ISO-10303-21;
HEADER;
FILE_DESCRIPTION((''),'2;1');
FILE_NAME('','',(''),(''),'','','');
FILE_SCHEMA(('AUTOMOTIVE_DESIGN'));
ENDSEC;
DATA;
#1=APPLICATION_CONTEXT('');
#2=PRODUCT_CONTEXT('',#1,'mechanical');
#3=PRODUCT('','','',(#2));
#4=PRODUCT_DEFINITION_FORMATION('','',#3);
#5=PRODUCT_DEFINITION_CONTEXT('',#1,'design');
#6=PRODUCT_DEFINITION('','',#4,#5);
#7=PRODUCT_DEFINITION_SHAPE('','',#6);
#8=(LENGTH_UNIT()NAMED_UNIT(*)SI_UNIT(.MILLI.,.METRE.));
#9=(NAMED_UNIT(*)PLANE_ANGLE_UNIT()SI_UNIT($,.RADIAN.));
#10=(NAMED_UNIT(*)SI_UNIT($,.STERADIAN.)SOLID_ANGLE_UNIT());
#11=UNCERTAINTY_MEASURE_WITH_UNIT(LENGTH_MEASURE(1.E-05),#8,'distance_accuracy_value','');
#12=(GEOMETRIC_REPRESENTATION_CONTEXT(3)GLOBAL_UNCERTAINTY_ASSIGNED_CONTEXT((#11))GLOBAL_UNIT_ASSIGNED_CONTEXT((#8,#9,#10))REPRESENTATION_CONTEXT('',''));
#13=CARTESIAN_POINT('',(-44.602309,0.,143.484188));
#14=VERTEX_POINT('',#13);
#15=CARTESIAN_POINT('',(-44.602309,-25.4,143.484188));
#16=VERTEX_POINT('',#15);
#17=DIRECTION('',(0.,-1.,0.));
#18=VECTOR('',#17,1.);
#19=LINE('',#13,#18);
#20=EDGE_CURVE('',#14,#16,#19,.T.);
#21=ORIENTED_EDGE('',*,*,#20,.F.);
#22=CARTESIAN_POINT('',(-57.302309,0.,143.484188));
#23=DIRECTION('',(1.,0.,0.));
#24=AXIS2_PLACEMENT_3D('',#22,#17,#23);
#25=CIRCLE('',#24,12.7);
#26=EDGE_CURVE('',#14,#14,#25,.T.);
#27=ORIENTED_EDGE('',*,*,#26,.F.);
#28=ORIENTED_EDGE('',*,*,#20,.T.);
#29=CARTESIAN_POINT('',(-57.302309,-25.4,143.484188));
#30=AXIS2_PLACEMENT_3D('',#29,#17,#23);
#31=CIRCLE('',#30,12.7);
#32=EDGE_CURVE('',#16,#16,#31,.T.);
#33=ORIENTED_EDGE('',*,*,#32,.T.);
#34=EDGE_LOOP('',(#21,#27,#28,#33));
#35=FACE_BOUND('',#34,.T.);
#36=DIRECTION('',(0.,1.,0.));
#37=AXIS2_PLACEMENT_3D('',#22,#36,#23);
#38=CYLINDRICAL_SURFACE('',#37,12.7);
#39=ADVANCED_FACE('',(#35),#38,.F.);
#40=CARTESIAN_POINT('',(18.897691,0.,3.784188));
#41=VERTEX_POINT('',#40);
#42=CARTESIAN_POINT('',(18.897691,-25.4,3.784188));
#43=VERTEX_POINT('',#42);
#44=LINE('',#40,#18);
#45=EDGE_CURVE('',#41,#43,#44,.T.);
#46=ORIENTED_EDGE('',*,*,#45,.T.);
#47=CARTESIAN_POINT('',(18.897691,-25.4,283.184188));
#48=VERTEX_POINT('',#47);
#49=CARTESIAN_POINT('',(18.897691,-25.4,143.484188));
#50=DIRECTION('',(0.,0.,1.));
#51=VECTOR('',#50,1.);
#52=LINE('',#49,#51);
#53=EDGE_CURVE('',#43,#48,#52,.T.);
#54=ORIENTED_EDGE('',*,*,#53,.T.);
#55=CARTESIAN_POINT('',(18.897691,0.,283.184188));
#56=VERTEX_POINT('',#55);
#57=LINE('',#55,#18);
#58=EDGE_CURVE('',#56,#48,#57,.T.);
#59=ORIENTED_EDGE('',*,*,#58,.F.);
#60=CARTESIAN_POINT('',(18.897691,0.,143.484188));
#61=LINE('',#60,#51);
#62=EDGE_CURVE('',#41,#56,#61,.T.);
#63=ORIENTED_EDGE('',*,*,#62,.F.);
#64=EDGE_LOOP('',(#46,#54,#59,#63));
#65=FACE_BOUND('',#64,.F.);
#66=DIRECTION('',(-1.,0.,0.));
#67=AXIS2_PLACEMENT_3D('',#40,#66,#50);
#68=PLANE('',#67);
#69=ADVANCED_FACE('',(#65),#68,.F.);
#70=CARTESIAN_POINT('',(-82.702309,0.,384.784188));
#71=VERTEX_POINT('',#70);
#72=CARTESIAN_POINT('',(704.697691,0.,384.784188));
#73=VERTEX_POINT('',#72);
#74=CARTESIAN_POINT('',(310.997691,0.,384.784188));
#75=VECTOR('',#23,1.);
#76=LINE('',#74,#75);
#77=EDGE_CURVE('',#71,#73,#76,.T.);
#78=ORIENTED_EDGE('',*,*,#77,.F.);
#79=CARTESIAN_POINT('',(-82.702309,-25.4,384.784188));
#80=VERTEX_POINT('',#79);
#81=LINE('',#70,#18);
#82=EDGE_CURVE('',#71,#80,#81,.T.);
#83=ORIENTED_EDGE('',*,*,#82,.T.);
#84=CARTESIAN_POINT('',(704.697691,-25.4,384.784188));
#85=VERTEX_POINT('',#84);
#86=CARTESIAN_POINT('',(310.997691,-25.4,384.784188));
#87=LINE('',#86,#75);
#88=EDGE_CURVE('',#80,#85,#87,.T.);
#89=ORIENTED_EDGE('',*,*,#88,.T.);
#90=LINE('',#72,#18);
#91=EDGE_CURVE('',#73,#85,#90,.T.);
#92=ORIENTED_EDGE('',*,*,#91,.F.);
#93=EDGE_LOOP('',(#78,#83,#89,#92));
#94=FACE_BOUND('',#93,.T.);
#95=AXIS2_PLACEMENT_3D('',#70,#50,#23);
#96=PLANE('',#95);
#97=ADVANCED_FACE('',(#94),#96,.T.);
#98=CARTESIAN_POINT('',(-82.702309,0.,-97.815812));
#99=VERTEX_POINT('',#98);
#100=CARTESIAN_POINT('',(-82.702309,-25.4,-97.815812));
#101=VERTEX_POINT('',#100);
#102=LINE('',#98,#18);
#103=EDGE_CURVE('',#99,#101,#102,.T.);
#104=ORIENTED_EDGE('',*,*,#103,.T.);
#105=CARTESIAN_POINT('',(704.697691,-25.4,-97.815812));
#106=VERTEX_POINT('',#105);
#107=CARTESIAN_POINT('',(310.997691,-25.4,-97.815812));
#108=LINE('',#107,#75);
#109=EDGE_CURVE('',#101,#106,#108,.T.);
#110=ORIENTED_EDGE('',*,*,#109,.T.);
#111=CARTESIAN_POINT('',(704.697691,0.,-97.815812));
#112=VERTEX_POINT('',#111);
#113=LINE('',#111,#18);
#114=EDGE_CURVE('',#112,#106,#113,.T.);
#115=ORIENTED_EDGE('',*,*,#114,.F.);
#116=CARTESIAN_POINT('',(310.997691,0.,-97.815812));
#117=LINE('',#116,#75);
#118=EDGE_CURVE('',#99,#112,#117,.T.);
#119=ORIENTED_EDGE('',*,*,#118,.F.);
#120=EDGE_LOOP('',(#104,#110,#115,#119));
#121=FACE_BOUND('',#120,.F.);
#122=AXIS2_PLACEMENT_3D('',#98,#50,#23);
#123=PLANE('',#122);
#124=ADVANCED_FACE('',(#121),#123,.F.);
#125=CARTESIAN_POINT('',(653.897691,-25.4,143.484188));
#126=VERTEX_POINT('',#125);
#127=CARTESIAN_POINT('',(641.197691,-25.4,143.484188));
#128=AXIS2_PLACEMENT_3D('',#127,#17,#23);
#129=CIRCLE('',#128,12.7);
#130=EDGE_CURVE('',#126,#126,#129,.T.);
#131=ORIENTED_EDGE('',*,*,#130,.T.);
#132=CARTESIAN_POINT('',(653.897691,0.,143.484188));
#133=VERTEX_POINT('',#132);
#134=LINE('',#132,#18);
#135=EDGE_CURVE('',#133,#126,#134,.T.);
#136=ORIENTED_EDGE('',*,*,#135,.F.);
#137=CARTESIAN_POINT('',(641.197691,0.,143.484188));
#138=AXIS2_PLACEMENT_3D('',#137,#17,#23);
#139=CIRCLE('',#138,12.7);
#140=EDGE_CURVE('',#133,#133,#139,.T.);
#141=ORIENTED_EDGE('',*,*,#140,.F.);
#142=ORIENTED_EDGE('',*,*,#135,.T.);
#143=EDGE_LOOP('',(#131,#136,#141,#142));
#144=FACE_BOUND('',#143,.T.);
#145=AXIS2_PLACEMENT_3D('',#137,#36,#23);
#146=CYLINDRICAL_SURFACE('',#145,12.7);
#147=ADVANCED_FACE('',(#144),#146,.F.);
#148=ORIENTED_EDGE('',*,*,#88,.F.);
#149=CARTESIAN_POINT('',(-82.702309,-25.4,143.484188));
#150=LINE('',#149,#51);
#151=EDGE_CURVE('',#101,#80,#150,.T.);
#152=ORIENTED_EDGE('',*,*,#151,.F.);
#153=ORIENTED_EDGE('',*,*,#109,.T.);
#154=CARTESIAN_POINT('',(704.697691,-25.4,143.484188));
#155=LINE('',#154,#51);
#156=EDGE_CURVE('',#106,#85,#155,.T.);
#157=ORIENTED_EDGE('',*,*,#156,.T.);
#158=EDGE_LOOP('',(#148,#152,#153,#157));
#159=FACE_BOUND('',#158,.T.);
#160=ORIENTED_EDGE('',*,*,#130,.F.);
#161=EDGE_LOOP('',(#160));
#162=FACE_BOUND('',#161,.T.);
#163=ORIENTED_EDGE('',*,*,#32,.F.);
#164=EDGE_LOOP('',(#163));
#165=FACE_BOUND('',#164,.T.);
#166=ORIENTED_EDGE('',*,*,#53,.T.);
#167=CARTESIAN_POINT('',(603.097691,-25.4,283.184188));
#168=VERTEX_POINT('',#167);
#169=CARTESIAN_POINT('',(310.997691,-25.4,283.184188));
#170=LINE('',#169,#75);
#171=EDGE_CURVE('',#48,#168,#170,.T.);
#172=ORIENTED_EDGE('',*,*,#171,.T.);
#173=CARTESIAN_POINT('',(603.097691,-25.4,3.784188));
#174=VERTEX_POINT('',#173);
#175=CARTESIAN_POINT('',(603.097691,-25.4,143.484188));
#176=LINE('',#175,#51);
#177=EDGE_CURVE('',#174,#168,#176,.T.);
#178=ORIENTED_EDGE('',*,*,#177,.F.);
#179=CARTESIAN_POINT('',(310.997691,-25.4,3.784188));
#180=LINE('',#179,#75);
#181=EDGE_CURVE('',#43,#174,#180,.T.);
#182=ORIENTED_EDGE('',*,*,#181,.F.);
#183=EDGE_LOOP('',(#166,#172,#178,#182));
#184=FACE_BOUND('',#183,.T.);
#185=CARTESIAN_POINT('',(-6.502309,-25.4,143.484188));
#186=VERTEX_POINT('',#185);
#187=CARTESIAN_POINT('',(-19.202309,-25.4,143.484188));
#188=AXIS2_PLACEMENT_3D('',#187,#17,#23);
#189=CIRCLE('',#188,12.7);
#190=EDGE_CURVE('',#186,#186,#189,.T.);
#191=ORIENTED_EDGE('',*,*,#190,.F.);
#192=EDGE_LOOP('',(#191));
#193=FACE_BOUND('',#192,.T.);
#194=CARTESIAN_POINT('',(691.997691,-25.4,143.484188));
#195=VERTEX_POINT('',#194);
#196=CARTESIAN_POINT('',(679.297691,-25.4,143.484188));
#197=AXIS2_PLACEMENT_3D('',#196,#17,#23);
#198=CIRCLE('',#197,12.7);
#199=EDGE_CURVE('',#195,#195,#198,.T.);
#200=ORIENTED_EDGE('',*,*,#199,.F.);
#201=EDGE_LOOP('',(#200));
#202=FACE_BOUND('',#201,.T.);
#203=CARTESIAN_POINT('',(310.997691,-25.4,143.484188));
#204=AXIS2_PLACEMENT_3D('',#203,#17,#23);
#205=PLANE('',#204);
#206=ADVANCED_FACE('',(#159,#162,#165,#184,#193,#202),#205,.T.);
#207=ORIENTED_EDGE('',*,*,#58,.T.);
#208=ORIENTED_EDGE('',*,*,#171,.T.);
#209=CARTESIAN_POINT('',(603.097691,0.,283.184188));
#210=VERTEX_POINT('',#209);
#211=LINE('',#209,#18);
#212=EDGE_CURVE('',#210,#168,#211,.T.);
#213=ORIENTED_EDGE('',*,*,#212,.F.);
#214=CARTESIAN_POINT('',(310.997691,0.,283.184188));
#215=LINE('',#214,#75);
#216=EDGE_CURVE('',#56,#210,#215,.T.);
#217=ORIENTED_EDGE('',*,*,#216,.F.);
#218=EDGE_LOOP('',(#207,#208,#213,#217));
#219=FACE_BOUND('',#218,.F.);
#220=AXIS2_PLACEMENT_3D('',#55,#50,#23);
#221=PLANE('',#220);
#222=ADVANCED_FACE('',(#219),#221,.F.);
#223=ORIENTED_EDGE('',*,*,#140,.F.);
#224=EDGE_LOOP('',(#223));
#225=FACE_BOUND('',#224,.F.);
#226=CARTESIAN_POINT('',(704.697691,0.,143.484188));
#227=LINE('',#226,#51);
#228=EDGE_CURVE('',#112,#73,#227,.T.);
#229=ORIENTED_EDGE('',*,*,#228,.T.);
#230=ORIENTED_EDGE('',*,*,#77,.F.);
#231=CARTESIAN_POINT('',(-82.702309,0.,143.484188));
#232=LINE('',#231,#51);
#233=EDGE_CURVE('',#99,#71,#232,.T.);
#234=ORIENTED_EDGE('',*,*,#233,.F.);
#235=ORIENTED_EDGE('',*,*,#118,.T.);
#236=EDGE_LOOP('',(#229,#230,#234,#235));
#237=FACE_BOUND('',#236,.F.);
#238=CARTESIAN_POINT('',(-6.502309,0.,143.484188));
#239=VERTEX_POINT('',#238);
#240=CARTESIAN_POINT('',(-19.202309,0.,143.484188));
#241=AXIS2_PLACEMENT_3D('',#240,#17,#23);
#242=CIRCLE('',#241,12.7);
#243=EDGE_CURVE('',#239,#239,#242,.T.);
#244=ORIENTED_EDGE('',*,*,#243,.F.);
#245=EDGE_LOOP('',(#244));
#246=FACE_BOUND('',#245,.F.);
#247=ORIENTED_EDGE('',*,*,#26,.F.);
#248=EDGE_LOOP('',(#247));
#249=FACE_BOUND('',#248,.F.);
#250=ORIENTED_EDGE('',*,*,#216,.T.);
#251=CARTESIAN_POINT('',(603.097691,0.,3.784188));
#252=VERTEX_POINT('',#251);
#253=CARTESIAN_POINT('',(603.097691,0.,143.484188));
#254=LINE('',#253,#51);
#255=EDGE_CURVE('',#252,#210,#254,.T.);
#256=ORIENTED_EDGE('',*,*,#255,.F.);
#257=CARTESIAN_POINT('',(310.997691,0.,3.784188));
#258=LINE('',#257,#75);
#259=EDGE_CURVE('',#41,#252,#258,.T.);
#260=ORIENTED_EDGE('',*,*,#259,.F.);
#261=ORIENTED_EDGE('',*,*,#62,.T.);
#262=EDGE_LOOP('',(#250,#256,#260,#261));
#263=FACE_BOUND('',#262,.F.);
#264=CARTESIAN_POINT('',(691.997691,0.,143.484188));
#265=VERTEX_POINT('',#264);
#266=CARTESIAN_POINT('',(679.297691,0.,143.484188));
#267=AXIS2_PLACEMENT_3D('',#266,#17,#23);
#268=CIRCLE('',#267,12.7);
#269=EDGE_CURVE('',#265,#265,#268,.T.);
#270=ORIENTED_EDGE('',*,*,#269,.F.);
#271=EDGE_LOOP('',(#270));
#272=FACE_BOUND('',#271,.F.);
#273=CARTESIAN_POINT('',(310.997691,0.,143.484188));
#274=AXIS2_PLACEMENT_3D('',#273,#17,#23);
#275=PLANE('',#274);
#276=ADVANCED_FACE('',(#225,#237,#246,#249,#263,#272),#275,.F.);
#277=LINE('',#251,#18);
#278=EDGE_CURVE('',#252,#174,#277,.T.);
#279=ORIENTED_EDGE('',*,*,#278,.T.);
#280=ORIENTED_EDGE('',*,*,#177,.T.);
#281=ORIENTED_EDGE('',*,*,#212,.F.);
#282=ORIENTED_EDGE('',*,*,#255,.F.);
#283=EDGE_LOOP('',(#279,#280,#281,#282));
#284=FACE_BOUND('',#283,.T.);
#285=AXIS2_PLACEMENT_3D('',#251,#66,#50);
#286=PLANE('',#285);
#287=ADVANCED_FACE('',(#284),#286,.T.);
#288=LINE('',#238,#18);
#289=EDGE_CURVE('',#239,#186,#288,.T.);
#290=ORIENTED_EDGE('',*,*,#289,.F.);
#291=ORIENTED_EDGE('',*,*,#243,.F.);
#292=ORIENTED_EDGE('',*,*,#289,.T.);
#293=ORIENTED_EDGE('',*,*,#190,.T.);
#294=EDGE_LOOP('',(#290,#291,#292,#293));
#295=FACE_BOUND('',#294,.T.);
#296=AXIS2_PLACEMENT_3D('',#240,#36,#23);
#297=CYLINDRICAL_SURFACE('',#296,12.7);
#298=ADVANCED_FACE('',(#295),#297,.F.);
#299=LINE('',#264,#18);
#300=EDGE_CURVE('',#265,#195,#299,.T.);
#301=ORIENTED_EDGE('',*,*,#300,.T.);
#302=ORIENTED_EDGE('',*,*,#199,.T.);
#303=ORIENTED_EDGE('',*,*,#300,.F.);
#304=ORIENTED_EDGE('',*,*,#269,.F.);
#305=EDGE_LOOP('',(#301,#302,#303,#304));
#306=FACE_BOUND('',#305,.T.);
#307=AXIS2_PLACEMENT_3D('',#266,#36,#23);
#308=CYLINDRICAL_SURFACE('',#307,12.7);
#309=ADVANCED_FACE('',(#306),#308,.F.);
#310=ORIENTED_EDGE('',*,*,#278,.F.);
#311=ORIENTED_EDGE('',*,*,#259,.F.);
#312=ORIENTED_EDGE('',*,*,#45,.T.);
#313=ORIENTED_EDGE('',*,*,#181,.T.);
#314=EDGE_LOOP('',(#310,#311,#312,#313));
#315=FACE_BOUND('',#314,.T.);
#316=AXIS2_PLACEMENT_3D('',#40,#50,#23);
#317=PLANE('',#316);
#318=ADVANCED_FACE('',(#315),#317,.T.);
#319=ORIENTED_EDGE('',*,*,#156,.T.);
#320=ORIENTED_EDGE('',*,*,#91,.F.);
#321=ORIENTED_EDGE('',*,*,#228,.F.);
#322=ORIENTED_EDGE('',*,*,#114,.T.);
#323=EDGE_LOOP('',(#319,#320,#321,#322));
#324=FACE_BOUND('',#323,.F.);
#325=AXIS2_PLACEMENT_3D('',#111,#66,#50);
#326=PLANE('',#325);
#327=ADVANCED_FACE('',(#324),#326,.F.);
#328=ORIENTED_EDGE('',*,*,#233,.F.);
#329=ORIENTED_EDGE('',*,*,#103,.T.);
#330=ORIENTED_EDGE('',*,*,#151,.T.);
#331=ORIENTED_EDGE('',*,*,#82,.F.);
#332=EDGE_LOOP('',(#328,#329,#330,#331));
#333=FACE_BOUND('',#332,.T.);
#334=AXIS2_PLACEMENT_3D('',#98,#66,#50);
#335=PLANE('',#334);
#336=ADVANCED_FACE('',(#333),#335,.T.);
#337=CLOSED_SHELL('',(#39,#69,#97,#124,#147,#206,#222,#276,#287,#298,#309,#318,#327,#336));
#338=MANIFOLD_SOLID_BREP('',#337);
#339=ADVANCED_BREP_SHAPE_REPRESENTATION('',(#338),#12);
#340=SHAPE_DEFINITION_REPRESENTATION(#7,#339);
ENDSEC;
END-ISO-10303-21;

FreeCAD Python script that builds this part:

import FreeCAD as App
import Part
import Sketcher
Q = App.Units.Quantity

doc = App.newDocument("Part")
params = doc.addObject("Spreadsheet::Sheet", "Params")
for row, (alias, value) in enumerate([
    ("sketch1_diameter", "1 in"),
    ("sketch1_width", "31 in"),
    ("sketch1_width2", "23 in"),
    ("sketch1_height", "19 in"),
    ("sketch1_height2", "11 in"),
    ("pad1_length", "1 in"),
], start=1):
    params.set(f"A{row}", alias)
    params.set(f"B{row}", "=" + value)
    params.setAlias(f"B{row}", alias)

body = doc.addObject("PartDesign::Body", "Body")

sketch1 = body.newObject("Sketcher::SketchObject", "Sketch")
sketch1.AttachmentSupport = (doc.getObject("XZ_Plane"), [""])
sketch1.MapMode = "FlatFace"
sketch1.addGeometry(Part.LineSegment(App.Vector(-83, 385, 0), App.Vector(-83, -98, 0)), False)
sketch1.addGeometry(Part.LineSegment(App.Vector(-83, -98, 0), App.Vector(705, -98, 0)), False)
sketch1.addGeometry(Part.LineSegment(App.Vector(705, -98, 0), App.Vector(705, 385, 0)), False)
sketch1.addGeometry(Part.LineSegment(App.Vector(705, 385, 0), App.Vector(-83, 385, 0)), False)
sketch1.addGeometry(Part.Circle(App.Vector(-57, 143, 0), App.Vector(0, 0, 1), 13), False)
sketch1.addGeometry(Part.Circle(App.Vector(-19, 143, 0), App.Vector(0, 0, 1), 13), False)
sketch1.addGeometry(Part.LineSegment(App.Vector(603, 4, 0), App.Vector(19, 4, 0)), False)
sketch1.addGeometry(Part.LineSegment(App.Vector(19, 4, 0), App.Vector(19, 283, 0)), False)
sketch1.addGeometry(Part.LineSegment(App.Vector(19, 283, 0), App.Vector(603, 283, 0)), False)
sketch1.addGeometry(Part.LineSegment(App.Vector(603, 283, 0), App.Vector(603, 4, 0)), False)
sketch1.addGeometry(Part.Circle(App.Vector(641, 143, 0), App.Vector(0, 0, 1), 13), False)
sketch1.addGeometry(Part.Circle(App.Vector(679, 143, 0), App.Vector(0, 0, 1), 13), False)
sketch1.addConstraint(Sketcher.Constraint("Coincident", 0, 2, 1, 1))
sketch1.addConstraint(Sketcher.Constraint("Coincident", 1, 2, 2, 1))
sketch1.addConstraint(Sketcher.Constraint("Coincident", 2, 2, 3, 1))
sketch1.addConstraint(Sketcher.Constraint("Coincident", 3, 2, 0, 1))
sketch1.addConstraint(Sketcher.Constraint("Coincident", 6, 2, 7, 1))
sketch1.addConstraint(Sketcher.Constraint("Coincident", 7, 2, 8, 1))
sketch1.addConstraint(Sketcher.Constraint("Coincident", 8, 2, 9, 1))
sketch1.addConstraint(Sketcher.Constraint("Coincident", 9, 2, 6, 1))
sketch1.addConstraint(Sketcher.Constraint("Vertical", 0))
sketch1.addConstraint(Sketcher.Constraint("Horizontal", 1))
sketch1.addConstraint(Sketcher.Constraint("Vertical", 2))
sketch1.addConstraint(Sketcher.Constraint("Horizontal", 3))
sketch1.addConstraint(Sketcher.Constraint("Horizontal", 6))
sketch1.addConstraint(Sketcher.Constraint("Vertical", 7))
sketch1.addConstraint(Sketcher.Constraint("Horizontal", 8))
sketch1.addConstraint(Sketcher.Constraint("Vertical", 9))
sketch1.addConstraint(Sketcher.Constraint("Equal", 4, 5))
sketch1.addConstraint(Sketcher.Constraint("Equal", 5, 10))
sketch1.addConstraint(Sketcher.Constraint("Equal", 10, 11))
sketch1.addConstraint(Sketcher.Constraint("Horizontal", 4, 3, 5, 3))
sketch1.addConstraint(Sketcher.Constraint("Horizontal", 5, 3, 10, 3))
sketch1.addConstraint(Sketcher.Constraint("Horizontal", 10, 3, 11, 3))
sketch1.addConstraint(Sketcher.Constraint("Diameter", 4, Q("1 in")))
sketch1.addConstraint(Sketcher.Constraint("DistanceX", 1, 1, 1, 2, Q("31 in")))
sketch1.addConstraint(Sketcher.Constraint("DistanceX", 6, 2, 6, 1, Q("23 in")))
sketch1.addConstraint(Sketcher.Constraint("DistanceY", 0, 2, 0, 1, Q("19 in")))
sketch1.addConstraint(Sketcher.Constraint("DistanceY", 7, 1, 7, 2, Q("11 in")))
sketch1.addConstraint(Sketcher.Constraint("DistanceX", 5, 3, 10, 3, Q("26 in")))
sketch1.addConstraint(Sketcher.Constraint("DistanceX", 4, 3, 11, 3, Q("29 in")))
sketch1.addConstraint(Sketcher.Constraint("DistanceX", 0, 2, 4, 3, Q("1 in")))
sketch1.addConstraint(Sketcher.Constraint("DistanceX", 0, 2, 6, 2, Q("4 in")))
sketch1.addConstraint(Sketcher.Constraint("DistanceY", 0, 2, 6, 2, Q("4 in")))
sketch1.addConstraint(Sketcher.Constraint("DistanceX", 4, 3, 5, 3, Q("1.5 in")))
sketch1.addConstraint(Sketcher.Constraint("DistanceY", 0, 2, 4, 3, Q("9.5 in")))
sketch1.addConstraint(Sketcher.Constraint("DistanceX", 4, 3, -1, 1, Q("57.302309 mm")))
sketch1.addConstraint(Sketcher.Constraint("DistanceY", 0, 2, -1, 1, Q("97.815812 mm")))
sketch1.setExpression("Constraints[22]", "Params.sketch1_diameter")
sketch1.setExpression("Constraints[23]", "Params.sketch1_width")
sketch1.setExpression("Constraints[24]", "Params.sketch1_width2")
sketch1.setExpression("Constraints[25]", "Params.sketch1_height")
sketch1.setExpression("Constraints[26]", "Params.sketch1_height2")
pad1 = body.newObject("PartDesign::Pad", "Pad")
pad1.Profile = sketch1
pad1.setExpression("Length", "Params.pad1_length")

doc.recompute()
